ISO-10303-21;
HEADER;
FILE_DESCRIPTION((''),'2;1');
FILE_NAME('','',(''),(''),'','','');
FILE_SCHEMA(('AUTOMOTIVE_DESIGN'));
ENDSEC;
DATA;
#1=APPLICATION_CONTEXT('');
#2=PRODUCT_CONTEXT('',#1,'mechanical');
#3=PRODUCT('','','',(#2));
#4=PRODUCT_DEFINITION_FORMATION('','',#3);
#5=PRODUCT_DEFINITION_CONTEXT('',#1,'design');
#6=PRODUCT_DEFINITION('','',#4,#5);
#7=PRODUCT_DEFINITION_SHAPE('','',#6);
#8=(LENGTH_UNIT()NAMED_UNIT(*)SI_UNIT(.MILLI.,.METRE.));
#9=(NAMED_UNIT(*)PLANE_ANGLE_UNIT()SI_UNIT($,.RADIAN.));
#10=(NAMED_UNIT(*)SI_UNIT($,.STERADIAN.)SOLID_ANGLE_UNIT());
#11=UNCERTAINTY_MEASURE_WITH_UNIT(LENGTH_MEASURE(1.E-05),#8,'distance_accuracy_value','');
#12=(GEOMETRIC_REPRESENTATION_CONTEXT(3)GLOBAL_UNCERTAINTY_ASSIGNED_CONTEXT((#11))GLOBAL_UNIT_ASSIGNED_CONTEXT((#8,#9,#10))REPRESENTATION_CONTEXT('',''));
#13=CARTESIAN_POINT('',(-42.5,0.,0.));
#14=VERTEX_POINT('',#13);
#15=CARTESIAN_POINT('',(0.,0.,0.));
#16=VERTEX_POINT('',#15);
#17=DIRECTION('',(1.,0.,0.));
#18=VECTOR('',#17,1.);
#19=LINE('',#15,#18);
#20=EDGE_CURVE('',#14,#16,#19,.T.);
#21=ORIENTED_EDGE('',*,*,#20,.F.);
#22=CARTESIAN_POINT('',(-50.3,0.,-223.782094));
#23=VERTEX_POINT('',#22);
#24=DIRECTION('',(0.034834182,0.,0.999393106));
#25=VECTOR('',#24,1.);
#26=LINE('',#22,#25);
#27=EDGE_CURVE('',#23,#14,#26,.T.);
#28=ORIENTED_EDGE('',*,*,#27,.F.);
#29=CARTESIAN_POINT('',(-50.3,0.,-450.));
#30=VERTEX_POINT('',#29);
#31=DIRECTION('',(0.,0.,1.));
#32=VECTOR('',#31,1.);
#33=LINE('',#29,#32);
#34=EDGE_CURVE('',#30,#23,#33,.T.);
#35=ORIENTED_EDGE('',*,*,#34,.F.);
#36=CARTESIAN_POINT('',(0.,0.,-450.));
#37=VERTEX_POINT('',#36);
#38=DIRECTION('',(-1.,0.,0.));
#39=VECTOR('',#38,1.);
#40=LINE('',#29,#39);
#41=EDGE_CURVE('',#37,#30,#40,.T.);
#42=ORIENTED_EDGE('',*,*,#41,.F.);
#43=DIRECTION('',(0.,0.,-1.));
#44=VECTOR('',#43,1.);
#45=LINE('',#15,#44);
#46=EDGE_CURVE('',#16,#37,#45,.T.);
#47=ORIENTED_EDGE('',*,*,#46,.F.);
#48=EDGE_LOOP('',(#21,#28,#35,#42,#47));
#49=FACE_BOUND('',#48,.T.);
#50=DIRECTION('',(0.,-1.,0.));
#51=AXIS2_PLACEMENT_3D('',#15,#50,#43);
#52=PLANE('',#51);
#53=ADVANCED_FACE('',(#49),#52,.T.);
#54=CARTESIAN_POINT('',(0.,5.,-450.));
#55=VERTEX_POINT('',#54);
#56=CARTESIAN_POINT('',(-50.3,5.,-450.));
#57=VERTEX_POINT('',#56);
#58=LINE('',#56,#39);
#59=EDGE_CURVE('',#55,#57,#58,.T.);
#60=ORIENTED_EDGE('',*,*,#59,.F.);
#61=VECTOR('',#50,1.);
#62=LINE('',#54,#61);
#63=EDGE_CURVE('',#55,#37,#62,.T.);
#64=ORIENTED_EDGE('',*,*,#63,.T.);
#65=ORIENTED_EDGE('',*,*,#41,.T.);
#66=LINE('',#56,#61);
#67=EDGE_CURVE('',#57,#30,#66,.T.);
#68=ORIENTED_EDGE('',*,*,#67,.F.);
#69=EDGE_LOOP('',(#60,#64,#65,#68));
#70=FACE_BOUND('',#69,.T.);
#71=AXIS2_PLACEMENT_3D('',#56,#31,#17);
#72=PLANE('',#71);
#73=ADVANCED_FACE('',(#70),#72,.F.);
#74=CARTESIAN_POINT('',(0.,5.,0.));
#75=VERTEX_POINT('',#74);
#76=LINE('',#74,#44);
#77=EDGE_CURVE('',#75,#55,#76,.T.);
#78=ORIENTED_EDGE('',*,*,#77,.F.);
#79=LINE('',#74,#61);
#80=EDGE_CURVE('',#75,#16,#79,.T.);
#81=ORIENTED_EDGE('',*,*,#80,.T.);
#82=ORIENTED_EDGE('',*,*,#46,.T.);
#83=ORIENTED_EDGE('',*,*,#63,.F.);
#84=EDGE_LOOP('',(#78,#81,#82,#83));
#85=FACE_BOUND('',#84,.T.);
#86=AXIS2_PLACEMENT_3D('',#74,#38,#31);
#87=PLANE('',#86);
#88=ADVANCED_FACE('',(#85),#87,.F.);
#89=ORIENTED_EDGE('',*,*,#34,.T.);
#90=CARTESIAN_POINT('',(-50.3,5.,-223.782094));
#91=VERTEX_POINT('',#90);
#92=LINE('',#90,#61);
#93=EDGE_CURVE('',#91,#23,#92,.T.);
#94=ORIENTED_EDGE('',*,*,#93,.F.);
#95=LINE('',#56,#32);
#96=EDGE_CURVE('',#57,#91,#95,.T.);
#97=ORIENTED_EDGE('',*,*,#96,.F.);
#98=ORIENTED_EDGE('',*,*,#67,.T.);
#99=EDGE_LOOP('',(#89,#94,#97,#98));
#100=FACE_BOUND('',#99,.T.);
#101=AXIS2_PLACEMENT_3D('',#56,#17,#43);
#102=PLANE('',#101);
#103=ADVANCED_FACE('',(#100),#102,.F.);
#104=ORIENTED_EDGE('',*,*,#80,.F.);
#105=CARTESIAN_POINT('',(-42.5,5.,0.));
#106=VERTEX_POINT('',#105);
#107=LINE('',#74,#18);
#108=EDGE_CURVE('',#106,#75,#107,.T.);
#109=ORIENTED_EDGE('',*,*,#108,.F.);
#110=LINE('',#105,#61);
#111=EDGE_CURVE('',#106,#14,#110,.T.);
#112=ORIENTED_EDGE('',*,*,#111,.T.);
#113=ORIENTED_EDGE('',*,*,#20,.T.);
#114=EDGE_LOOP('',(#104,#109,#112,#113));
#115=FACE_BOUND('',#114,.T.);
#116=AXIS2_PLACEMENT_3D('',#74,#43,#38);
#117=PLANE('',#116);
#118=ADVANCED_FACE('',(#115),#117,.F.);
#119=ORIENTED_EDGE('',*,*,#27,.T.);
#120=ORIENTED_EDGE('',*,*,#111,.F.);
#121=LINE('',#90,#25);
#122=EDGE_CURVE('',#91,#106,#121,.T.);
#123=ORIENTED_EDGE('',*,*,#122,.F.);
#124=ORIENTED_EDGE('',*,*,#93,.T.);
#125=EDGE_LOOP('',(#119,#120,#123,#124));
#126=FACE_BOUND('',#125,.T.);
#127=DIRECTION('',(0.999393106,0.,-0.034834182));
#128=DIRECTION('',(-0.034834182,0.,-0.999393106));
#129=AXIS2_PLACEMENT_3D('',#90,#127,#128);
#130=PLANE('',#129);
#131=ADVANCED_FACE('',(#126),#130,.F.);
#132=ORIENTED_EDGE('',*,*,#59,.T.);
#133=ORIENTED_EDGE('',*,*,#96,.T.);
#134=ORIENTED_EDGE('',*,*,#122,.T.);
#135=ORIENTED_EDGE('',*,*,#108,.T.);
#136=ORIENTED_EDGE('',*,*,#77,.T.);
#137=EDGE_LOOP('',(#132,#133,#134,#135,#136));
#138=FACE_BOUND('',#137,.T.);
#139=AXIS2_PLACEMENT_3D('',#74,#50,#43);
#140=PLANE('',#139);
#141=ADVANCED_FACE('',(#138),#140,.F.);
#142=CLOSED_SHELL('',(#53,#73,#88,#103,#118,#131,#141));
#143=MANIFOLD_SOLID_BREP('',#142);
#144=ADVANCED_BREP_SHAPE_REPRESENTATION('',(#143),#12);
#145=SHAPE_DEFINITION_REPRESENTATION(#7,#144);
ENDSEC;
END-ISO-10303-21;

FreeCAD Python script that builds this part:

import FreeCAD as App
import Part
import Sketcher

doc = App.newDocument("Part")
body = doc.addObject("PartDesign::Body", "Body")

# Sketch on XZ plane
sketch1 = doc.addObject("Sketcher::SketchObject", "Sketch")
body.addObject(sketch1)
sketch1.AttachmentSupport = (doc.XZ_Plane, [""])
sketch1.MapMode = "FlatFace"
sketch1.addGeometry([
    Part.LineSegment(App.Vector(-42, 0, 0), App.Vector(0, 0, 0)),  # 0
    Part.LineSegment(App.Vector(0, 0, 0), App.Vector(0, -450, 0)),  # 1
    Part.LineSegment(App.Vector(0, -450, 0), App.Vector(-50, -450, 0)),  # 2
    Part.LineSegment(App.Vector(-50, -450, 0), App.Vector(-50, -224, 0)),  # 3
    Part.LineSegment(App.Vector(-50, -224, 0), App.Vector(-42, 0, 0)),  # 4
], False)
sketch1.addConstraint([
    Sketcher.Constraint("Coincident", 0, 2, 1, 1),
    Sketcher.Constraint("Coincident", 1, 2, 2, 1),
    Sketcher.Constraint("Coincident", 2, 2, 3, 1),
    Sketcher.Constraint("Coincident", 3, 2, 4, 1),
    Sketcher.Constraint("Coincident", 4, 2, 0, 1),
    Sketcher.Constraint("Horizontal", 0),
    Sketcher.Constraint("Vertical", 1),
    Sketcher.Constraint("Horizontal", 2),
    Sketcher.Constraint("Vertical", 3),
    Sketcher.Constraint("Coincident", 0, 2, -1, 1),
    Sketcher.Constraint("DistanceY", 1, 2, 1, 1, 450.0),
    Sketcher.Constraint("DistanceX", 0, 1, 0, 2, 42.5),
    Sketcher.Constraint("DistanceX", 2, 2, 2, 1, 50.3),
    Sketcher.Constraint("Distance", 4, 223.917989),
])
pad1 = doc.addObject("PartDesign::Pad", "Pad")
body.addObject(pad1)
pad1.Profile = sketch1
pad1.Length = 5
pad1.Reversed = True

doc.recompute()
